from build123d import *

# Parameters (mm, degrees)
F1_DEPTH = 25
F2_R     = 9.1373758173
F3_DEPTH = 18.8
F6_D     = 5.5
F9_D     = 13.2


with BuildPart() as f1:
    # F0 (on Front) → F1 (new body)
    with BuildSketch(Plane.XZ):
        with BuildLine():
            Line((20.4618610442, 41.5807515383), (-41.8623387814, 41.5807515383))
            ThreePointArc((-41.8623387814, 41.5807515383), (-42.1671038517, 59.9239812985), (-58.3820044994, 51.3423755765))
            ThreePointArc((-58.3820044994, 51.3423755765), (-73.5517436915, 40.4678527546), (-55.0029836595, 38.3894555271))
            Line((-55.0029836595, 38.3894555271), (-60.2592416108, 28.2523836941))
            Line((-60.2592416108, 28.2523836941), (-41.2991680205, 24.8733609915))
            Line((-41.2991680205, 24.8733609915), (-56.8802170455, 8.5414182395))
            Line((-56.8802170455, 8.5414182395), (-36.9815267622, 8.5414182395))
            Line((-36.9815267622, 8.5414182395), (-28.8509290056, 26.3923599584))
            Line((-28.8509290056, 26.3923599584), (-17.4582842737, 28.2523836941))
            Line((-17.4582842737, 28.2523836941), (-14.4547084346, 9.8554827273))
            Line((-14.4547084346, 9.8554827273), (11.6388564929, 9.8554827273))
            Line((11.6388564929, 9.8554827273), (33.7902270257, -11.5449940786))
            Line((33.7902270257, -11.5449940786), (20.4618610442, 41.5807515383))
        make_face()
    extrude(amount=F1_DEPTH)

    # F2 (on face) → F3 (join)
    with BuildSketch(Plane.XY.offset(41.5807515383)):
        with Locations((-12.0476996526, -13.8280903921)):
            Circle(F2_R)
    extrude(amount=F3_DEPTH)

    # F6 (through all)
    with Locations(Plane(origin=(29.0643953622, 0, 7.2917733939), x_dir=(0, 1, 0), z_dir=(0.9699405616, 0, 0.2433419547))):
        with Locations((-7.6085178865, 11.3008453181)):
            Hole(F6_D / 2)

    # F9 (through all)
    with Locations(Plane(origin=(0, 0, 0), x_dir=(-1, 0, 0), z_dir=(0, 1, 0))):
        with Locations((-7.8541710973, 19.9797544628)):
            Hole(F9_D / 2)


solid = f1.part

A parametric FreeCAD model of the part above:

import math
import FreeCAD as App
import Part
import Sketcher

doc = App.newDocument("Part")
params = doc.addObject("Spreadsheet::Sheet", "Params")
for row, (alias, value) in enumerate([
    ("pad1_length", "25 mm"),
    ("pad2_length", "18.8 mm"),
    ("sketch3_diameter", "5.5 mm"),
    ("hole_diameter", "5.5 mm"),
    ("sketch4_diameter", "13.2 mm"),
    ("hole2_diameter", "13.2 mm"),
], start=1):
    params.set(f"A{row}", alias)
    params.set(f"B{row}", "=" + value)
    params.setAlias(f"B{row}", alias)

body = doc.addObject("PartDesign::Body", "Body")

# Sketch on XZ plane
sketch1 = doc.addObject("Sketcher::SketchObject", "Sketch")
body.addObject(sketch1)
sketch1.AttachmentSupport = (doc.XZ_Plane, [""])
sketch1.MapMode = "FlatFace"
sketch1.addGeometry([
    Part.LineSegment(App.Vector(20, 42, 0), App.Vector(-42, 42, 0)),  # 0
    Part.ArcOfCircle(Part.Circle(App.Vector(-48, 51, 0), App.Vector(0, 0, 1), 11), math.radians(-58), math.radians(176)),  # 1
    Part.ArcOfCircle(Part.Circle(App.Vector(-64, 43, 0), App.Vector(0, 0, 1), 10), math.radians(57), math.radians(333)),  # 2
    Part.LineSegment(App.Vector(-55, 38, 0), App.Vector(-60, 28, 0)),  # 3
    Part.LineSegment(App.Vector(-60, 28, 0), App.Vector(-41, 25, 0)),  # 4
    Part.LineSegment(App.Vector(-41, 25, 0), App.Vector(-57, 9, 0)),  # 5
    Part.LineSegment(App.Vector(-57, 9, 0), App.Vector(-37, 9, 0)),  # 6
    Part.LineSegment(App.Vector(-37, 9, 0), App.Vector(-29, 26, 0)),  # 7
    Part.LineSegment(App.Vector(-29, 26, 0), App.Vector(-17, 28, 0)),  # 8
    Part.LineSegment(App.Vector(-17, 28, 0), App.Vector(-14, 10, 0)),  # 9
    Part.LineSegment(App.Vector(-14, 10, 0), App.Vector(12, 10, 0)),  # 10
    Part.LineSegment(App.Vector(12, 10, 0), App.Vector(34, -12, 0)),  # 11
    Part.LineSegment(App.Vector(34, -12, 0), App.Vector(20, 42, 0)),  # 12
], False)
sketch1.addConstraint([
    Sketcher.Constraint("Coincident", 0, 2, 1, 1),
    Sketcher.Constraint("Coincident", 1, 2, 2, 1),
    Sketcher.Constraint("Tangent", 2, 2, 3, 1),
    Sketcher.Constraint("Coincident", 3, 2, 4, 1),
    Sketcher.Constraint("Coincident", 4, 2, 5, 1),
    Sketcher.Constraint("Coincident", 5, 2, 6, 1),
    Sketcher.Constraint("Coincident", 6, 2, 7, 1),
    Sketcher.Constraint("Coincident", 7, 2, 8, 1),
    Sketcher.Constraint("Coincident", 8, 2, 9, 1),
    Sketcher.Constraint("Coincident", 9, 2, 10, 1),
    Sketcher.Constraint("Coincident", 10, 2, 11, 1),
    Sketcher.Constraint("Coincident", 11, 2, 12, 1),
    Sketcher.Constraint("Coincident", 12, 2, 0, 1),
    Sketcher.Constraint("Horizontal", 0),
    Sketcher.Constraint("Horizontal", 6),
    Sketcher.Constraint("Horizontal", 10),
    Sketcher.Constraint("Perpendicular", 8, 9),
    Sketcher.Constraint("Horizontal", 3, 2, 8, 2),
    Sketcher.Constraint("Radius", 1, 10.761789),
    Sketcher.Constraint("DistanceX", 0, 2, 0, 1, 62.3242),
    Sketcher.Constraint("Radius", 2, 9.997327),
    Sketcher.Constraint("DistanceY", 4, 2, 7, 2, 1.518999),
    Sketcher.Constraint("DistanceX", 6, 1, 6, 2, 19.89869),
    Sketcher.Constraint("DistanceX", 3, 2, 1, 3, 12.617299),
    Sketcher.Constraint("DistanceY", 9, 2, 8, 2, 18.396901),
    Sketcher.Constraint("Distance", 4, 19.258821),
    Sketcher.Constraint("Distance", 5, 22.572139),
    Sketcher.Constraint("Distance", 7, 19.61537),
    Sketcher.Constraint("Distance", 9, 18.640478),
    Sketcher.Constraint("DistanceX", 10, 1, 10, 2, 26.093565),
    Sketcher.Constraint("DistanceX", 0, 2, -1, 1, 41.862339),
    Sketcher.Constraint("DistanceY", -1, 1, 0, 2, 41.580752),
    Sketcher.Constraint("DistanceX", 3, 2, -1, 1, 60.259242),
    Sketcher.Constraint("DistanceX", 4, 2, -1, 1, 41.299168),
    Sketcher.Constraint("DistanceY", -1, 1, 4, 2, 24.873361),
    Sketcher.Constraint("DistanceY", -1, 1, 5, 2, 8.541418),
    Sketcher.Constraint("DistanceX", 2, 3, 0, 2, 22.015818),
    Sketcher.Constraint("DistanceY", 2, 3, 1, 2, 8.35098),
    Sketcher.Constraint("DistanceX", 10, 2, 11, 2, 22.151371),
    Sketcher.Constraint("Distance", 11, 30.800384),
])
pad1 = doc.addObject("PartDesign::Pad", "Pad")
body.addObject(pad1)
pad1.Profile = sketch1
pad1.setExpression("Length", "Params.pad1_length")

# Sketch on XY plane
sketch2 = doc.addObject("Sketcher::SketchObject", "Sketch001")
body.addObject(sketch2)
sketch2.AttachmentSupport = (doc.XY_Plane, [""])
sketch2.MapMode = "FlatFace"
sketch2.AttachmentOffset = App.Placement(App.Vector(0, 0, 41.580752), App.Rotation())
sketch2.addGeometry(Part.Circle(App.Vector(-12, -14, 0), App.Vector(0, 0, 1), 9), False)
sketch2.addConstraint([
    Sketcher.Constraint("Diameter", 0, 18.274752),
    Sketcher.Constraint("DistanceX", 0, 3, -1, 1, 12.0477),
    Sketcher.Constraint("DistanceY", 0, 3, -1, 1, 13.82809),
])
pad2 = doc.addObject("PartDesign::Pad", "Pad001")
body.addObject(pad2)
pad2.Profile = sketch2
pad2.setExpression("Length", "Params.pad2_length")

# Sketch on an angled plane
sketch3 = doc.addObject("Sketcher::SketchObject", "Sketch002")
body.addObject(sketch3)
sketch3.Placement = App.Placement(App.Vector(29.064395, 0, 7.291773), App.Rotation(App.Vector(0, 1, 0), App.Vector(-0.243341955, 0, 0.969940562), App.Vector(0.969940562, 0, 0.243341955), "ZXY"))
sketch3.addGeometry(Part.Circle(App.Vector(-7.6, 11.3, 0), App.Vector(0, 0, 1), 2.8), False)
sketch3.addConstraint([
    Sketcher.Constraint("Diameter", 0, 5.5),
    Sketcher.Constraint("DistanceX", 0, 3, -1, 1, 7.608518),
    Sketcher.Constraint("DistanceY", -1, 1, 0, 3, 11.300845),
])
sketch3.setExpression("Constraints[0]", "Params.sketch3_diameter")
doc.recompute()
hole = doc.addObject("PartDesign::Hole", "Hole")
body.addObject(hole)
hole.Profile = sketch3
hole.ThreadType = "None"
hole.setExpression("Diameter", "Params.hole_diameter")
hole.DepthType = "ThroughAll"

# Sketch on XZ plane
sketch4 = doc.addObject("Sketcher::SketchObject", "Sketch003")
body.addObject(sketch4)
sketch4.AttachmentSupport = (doc.XZ_Plane, [""])
sketch4.MapMode = "FlatFace"
sketch4.addGeometry(Part.Circle(App.Vector(8, 20, 0), App.Vector(0, 0, 1), 7), False)
sketch4.addConstraint([
    Sketcher.Constraint("Diameter", 0, 13.2),
    Sketcher.Constraint("DistanceX", -1, 1, 0, 3, 7.854171),
    Sketcher.Constraint("DistanceY", -1, 1, 0, 3, 19.979754),
])
sketch4.setExpression("Constraints[0]", "Params.sketch4_diameter")
doc.recompute()
hole2 = doc.addObject("PartDesign::Hole", "Hole001")
body.addObject(hole2)
hole2.Profile = sketch4
hole2.ThreadType = "None"
hole2.setExpression("Diameter", "Params.hole2_diameter")
hole2.DepthType = "ThroughAll"
hole2.Reversed = True

doc.recompute()
